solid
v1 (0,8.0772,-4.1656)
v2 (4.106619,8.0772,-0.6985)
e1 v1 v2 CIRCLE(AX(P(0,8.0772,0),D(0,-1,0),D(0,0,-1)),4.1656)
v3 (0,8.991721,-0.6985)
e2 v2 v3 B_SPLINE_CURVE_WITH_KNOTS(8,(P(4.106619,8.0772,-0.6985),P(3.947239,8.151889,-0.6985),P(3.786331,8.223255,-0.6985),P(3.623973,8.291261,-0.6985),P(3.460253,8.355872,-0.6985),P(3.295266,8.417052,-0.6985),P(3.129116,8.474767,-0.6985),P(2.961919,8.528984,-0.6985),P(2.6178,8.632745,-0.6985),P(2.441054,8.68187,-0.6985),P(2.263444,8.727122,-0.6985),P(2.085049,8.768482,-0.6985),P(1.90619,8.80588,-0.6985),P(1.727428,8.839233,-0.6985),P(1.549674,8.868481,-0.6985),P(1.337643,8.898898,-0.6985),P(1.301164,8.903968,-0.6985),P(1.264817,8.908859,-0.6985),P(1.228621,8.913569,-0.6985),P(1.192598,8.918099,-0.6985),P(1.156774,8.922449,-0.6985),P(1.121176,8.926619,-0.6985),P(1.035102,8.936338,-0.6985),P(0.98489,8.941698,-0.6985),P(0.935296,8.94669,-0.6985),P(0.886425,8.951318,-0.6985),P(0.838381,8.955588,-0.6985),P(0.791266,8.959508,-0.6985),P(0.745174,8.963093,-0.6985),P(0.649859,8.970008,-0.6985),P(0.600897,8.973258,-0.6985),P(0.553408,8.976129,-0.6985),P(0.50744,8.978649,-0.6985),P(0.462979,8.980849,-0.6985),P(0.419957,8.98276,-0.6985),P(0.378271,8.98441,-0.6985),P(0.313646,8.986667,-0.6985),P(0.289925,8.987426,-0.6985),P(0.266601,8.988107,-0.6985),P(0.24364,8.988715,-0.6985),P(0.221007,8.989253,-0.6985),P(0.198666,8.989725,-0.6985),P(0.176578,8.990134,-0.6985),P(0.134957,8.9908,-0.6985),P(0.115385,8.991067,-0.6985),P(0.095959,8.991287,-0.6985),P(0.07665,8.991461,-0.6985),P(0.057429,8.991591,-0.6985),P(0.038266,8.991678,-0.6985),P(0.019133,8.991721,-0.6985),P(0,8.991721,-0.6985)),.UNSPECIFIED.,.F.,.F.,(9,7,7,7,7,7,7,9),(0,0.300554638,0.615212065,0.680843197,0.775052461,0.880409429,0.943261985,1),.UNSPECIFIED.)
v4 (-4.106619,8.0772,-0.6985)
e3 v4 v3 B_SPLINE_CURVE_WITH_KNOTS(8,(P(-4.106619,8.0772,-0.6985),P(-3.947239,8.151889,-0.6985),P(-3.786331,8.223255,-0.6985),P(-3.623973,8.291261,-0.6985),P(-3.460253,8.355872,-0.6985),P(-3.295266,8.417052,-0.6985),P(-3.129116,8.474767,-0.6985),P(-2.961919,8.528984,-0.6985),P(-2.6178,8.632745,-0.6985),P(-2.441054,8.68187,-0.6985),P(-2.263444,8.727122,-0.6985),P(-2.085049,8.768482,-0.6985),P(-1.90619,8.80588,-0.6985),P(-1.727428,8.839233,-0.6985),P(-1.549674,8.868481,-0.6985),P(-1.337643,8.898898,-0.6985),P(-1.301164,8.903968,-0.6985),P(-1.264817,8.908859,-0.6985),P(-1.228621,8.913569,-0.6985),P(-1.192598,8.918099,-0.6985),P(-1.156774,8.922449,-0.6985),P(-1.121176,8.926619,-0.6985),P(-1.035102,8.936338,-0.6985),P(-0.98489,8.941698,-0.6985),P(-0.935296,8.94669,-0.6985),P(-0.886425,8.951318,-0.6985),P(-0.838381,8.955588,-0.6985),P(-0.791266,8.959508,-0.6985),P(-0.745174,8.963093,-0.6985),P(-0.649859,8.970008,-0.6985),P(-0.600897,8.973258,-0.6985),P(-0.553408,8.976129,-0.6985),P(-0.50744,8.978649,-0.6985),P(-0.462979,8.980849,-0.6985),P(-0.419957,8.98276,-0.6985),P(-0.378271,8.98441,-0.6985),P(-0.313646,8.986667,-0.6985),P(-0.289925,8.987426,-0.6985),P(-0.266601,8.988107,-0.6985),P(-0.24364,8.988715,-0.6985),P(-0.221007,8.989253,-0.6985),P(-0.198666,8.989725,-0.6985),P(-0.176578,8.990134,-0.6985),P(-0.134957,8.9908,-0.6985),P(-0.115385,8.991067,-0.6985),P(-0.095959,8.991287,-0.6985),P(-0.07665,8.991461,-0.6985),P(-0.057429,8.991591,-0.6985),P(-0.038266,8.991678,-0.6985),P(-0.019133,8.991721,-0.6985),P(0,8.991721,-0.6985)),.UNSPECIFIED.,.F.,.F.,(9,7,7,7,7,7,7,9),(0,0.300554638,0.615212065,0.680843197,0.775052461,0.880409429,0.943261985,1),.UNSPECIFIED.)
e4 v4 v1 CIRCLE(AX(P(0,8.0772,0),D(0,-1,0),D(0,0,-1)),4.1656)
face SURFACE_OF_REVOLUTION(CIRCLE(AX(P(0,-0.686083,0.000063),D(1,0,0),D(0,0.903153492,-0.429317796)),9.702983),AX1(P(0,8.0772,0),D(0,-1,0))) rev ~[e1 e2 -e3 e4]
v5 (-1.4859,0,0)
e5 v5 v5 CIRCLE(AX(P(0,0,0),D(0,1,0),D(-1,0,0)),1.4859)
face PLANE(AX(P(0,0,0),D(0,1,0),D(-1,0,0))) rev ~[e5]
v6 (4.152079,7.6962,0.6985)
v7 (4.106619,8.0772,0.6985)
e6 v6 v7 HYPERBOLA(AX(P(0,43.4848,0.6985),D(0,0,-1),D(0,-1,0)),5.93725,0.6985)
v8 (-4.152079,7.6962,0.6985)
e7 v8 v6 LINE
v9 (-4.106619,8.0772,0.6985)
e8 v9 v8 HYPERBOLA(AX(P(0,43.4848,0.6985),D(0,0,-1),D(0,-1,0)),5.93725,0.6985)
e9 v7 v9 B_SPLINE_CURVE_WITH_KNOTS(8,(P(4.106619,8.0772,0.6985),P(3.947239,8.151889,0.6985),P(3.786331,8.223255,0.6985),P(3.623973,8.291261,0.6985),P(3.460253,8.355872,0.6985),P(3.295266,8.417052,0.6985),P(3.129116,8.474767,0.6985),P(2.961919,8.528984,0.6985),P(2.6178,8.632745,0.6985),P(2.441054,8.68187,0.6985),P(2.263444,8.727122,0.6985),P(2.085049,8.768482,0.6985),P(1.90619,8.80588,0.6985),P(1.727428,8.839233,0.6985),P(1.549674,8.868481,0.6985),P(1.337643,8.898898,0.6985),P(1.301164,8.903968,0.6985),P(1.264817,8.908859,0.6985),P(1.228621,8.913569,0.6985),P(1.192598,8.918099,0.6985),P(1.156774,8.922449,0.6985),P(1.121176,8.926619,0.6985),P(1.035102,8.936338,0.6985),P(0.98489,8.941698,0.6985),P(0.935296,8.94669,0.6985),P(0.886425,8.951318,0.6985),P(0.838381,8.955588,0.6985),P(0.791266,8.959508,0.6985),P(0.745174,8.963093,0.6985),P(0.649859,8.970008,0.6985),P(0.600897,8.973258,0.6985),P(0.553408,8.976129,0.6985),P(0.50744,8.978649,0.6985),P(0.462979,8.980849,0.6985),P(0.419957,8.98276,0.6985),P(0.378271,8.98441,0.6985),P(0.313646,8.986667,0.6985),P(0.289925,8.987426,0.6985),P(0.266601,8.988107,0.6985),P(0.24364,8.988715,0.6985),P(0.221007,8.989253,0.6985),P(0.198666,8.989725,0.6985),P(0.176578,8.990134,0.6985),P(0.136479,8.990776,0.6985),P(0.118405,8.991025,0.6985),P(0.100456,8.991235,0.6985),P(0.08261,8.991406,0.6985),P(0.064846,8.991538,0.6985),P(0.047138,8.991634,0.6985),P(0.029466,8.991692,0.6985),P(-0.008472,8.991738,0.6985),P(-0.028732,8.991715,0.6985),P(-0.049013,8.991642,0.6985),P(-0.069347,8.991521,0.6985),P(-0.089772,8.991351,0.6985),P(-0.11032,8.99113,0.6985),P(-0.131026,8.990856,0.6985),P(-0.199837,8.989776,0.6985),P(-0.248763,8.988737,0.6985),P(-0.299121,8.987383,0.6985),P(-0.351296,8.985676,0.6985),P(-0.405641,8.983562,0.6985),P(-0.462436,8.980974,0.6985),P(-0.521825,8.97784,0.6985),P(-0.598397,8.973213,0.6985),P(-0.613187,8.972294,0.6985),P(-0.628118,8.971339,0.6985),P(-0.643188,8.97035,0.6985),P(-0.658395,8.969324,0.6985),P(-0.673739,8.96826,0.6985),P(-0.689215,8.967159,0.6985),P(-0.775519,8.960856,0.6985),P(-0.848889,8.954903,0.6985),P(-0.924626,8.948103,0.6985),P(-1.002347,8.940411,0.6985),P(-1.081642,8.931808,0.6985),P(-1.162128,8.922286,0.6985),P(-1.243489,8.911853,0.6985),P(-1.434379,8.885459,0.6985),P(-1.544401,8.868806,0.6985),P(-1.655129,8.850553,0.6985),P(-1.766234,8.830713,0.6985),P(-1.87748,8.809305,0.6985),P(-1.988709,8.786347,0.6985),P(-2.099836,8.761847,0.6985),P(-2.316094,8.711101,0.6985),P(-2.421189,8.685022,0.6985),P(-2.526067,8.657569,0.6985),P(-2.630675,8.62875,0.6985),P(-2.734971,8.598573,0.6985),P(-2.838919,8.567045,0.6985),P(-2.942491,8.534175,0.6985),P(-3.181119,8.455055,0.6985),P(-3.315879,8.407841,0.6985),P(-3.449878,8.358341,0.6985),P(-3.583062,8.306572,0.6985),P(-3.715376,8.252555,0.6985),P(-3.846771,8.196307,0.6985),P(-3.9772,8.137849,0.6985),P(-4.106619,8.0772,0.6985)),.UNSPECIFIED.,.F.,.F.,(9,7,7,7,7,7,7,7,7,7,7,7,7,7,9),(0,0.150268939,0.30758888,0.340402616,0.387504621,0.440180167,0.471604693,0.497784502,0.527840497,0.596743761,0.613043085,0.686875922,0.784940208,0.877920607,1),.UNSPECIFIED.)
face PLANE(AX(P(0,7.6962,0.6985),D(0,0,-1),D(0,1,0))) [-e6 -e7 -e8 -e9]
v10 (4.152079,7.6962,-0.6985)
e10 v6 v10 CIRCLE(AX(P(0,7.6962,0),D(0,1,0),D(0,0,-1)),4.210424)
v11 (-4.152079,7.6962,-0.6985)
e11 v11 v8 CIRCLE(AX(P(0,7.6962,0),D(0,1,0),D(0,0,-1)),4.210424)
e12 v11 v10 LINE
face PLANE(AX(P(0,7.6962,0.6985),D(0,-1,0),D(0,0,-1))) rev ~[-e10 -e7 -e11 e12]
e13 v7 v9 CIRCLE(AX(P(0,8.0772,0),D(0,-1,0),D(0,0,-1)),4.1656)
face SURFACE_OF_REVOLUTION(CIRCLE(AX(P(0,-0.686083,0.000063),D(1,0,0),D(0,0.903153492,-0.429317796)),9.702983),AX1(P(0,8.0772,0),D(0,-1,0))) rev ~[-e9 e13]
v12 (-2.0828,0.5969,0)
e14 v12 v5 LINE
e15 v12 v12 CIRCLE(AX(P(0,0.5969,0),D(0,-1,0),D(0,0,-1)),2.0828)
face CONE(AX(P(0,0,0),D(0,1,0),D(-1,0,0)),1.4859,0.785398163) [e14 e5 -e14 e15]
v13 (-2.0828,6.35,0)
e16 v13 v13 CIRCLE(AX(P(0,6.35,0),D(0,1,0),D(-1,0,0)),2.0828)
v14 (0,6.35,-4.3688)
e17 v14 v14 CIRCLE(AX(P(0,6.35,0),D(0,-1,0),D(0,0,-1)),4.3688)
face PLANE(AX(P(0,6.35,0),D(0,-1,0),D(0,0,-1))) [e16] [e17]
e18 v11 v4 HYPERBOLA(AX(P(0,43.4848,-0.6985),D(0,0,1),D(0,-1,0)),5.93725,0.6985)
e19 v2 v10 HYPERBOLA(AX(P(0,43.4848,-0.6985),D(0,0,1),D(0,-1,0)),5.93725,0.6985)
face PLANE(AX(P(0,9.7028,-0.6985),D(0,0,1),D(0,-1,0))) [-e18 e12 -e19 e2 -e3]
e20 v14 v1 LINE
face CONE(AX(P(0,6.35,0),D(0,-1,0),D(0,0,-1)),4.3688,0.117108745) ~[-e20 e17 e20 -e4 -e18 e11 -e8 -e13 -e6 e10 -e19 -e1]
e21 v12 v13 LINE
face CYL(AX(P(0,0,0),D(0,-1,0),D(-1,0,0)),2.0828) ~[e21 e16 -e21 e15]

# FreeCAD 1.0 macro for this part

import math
import FreeCAD as App
import Part
import Sketcher

V = App.Vector
Q = App.Units.Quantity

doc = App.newDocument("Part")
body = doc.addObject("PartDesign::Body", "Body")

# Sketch on XZ plane
sketch1 = doc.addObject("Sketcher::SketchObject", "Sketch")
body.addObject(sketch1)
sketch1.AttachmentSupport = (doc.XZ_Plane, [""])
sketch1.MapMode = "FlatFace"
sketch1.addGeometry(Part.Circle(V(0, 0, 0), V(0, 0, 1), 2.0828), False)
sketch1.addConstraint([
    Sketcher.Constraint("Coincident", 0, 3, -1, 1),
    Sketcher.Constraint("Diameter", 0, Q("0.164 in")),
])
pad1 = doc.addObject("PartDesign::Pad", "Pad")
body.addObject(pad1)
pad1.Profile = sketch1
pad1.Length = Q("0.25 in")
pad1.Reversed = True

# Sketch on YZ plane
sketch2 = doc.addObject("Sketcher::SketchObject", "Sketch001")
body.addObject(sketch2)
sketch2.AttachmentSupport = (doc.YZ_Plane, [""])
sketch2.MapMode = "FlatFace"
sketch2.addGeometry([
    Part.LineSegment(V(6.35, 0, 0), V(6.35, -4.3688, 0)),
    Part.LineSegment(V(6.35, -4.3688, 0), V(8.0772, -4.1656, 0)),
    Part.ArcOfCircle(Part.Circle(V(-0.6859, 0, 0), V(0, 0, 1), 9.702791), math.radians(-25.4244), math.radians(0)),
    Part.LineSegment(V(9.0169, 0, 0), V(6.35, 0, 0)),
], False)
sketch2.addConstraint([
    Sketcher.Constraint("Coincident", 0, 2, 1, 1),
    Sketcher.Constraint("Coincident", 1, 2, 2, 1),
    Sketcher.Constraint("Coincident", 2, 2, 3, 1),
    Sketcher.Constraint("Coincident", 3, 2, 0, 1),
    Sketcher.Constraint("Vertical", 0),
    Sketcher.Constraint("Horizontal", 3),
    Sketcher.Constraint("PointOnObject", 2, 3, -1),
    Sketcher.Constraint("PointOnObject", 2, 2, -1),
    Sketcher.Constraint("Radius", 2, Q("0.382 in")),
    Sketcher.Constraint("DistanceY", 0, 2, 0, 1, Q("0.172 in")),
    Sketcher.Constraint("DistanceY", 1, 2, -1, 1, Q("0.164 in")),
    Sketcher.Constraint("DistanceX", 0, 2, 1, 2, Q("0.068 in")),
    Sketcher.Constraint("DistanceX", -1, 1, 0, 2, Q("0.25 in")),
])
revolution = doc.addObject("PartDesign::Revolution", "Revolution")
body.addObject(revolution)
revolution.Profile = sketch2
revolution.ReferenceAxis = (sketch2, ["H_Axis"])
revolution.Angle = 360

# Sketch on XY plane
sketch3 = doc.addObject("Sketcher::SketchObject", "Sketch002")
body.addObject(sketch3)
sketch3.AttachmentSupport = (doc.XY_Plane, [""])
sketch3.MapMode = "FlatFace"
sketch3.addGeometry([
    Part.LineSegment(V(-1.4859, -1.2188, 0), V(-1.4859, 0, 0)),
    Part.LineSegment(V(-1.4859, 0, 0), V(-2.4948, 1.0089, 0)),
    Part.LineSegment(V(-2.4948, 1.0089, 0), V(-2.9651, -1.2188, 0)),
    Part.LineSegment(V(-2.9651, -1.2188, 0), V(-1.4859, -1.2188, 0)),
], False)
sketch3.addConstraint([
    Sketcher.Constraint("Coincident", 0, 2, 1, 1),
    Sketcher.Constraint("Coincident", 1, 2, 2, 1),
    Sketcher.Constraint("Coincident", 2, 2, 3, 1),
    Sketcher.Constraint("Coincident", 3, 2, 0, 1),
    Sketcher.Constraint("Vertical", 0),
    Sketcher.Constraint("Horizontal", 3),
    Sketcher.Constraint("PointOnObject", 0, 2, -1),
    Sketcher.Constraint("Angle", 1, Q("135 deg")),
    Sketcher.Constraint("DistanceX", 0, 2, -1, 1, Q("0.0585 in")),
    Sketcher.Constraint("Angle", 2, Q("-101.921 deg")),
    Sketcher.Constraint("DistanceX", 3, 1, 3, 2, Q("1.4792 mm")),
    Sketcher.Constraint("DistanceY", 0, 1, 0, 2, Q("1.2188 mm")),
])
groove = doc.addObject("PartDesign::Groove", "Groove")
body.addObject(groove)
groove.Profile = sketch3
groove.ReferenceAxis = (sketch3, ["V_Axis"])
groove.Angle = 360

# Sketch on YZ plane
sketch4 = doc.addObject("Sketcher::SketchObject", "Sketch003")
body.addObject(sketch4)
sketch4.AttachmentSupport = (doc.YZ_Plane, [""])
sketch4.MapMode = "FlatFace"
sketch4.addGeometry([
    Part.LineSegment(V(9.7028, 0.6985, 0), V(7.6962, 0.6985, 0)),
    Part.LineSegment(V(7.6962, 0.6985, 0), V(7.6962, -0.6985, 0)),
    Part.LineSegment(V(7.6962, -0.6985, 0), V(9.7028, -0.6985, 0)),
    Part.LineSegment(V(9.7028, -0.6985, 0), V(9.7028, 0.6985, 0)),
], False)
sketch4.addConstraint([
    Sketcher.Constraint("Coincident", 0, 2, 1, 1),
    Sketcher.Constraint("Coincident", 1, 2, 2, 1),
    Sketcher.Constraint("Coincident", 2, 2, 3, 1),
    Sketcher.Constraint("Coincident", 3, 2, 0, 1),
    Sketcher.Constraint("Horizontal", 0),
    Sketcher.Constraint("Vertical", 1),
    Sketcher.Constraint("Horizontal", 2),
    Sketcher.Constraint("Vertical", 3),
    Sketcher.Constraint("DistanceX", 0, 2, 0, 1, Q("0.079 in")),
    Sketcher.Constraint("DistanceY", 1, 2, 1, 1, Q("0.055 in")),
    Sketcher.Constraint("DistanceX", -1, 1, 0, 2, Q("0.303 in")),
    Sketcher.Constraint("DistanceY", -1, 1, 0, 2, Q("0.0275 in")),
])
pocket1 = doc.addObject("PartDesign::Pocket", "Pocket")
body.addObject(pocket1)
pocket1.Profile = sketch4
pocket1.Length = Q("0.5 in")
pocket1.Midplane = True

doc.recompute()
